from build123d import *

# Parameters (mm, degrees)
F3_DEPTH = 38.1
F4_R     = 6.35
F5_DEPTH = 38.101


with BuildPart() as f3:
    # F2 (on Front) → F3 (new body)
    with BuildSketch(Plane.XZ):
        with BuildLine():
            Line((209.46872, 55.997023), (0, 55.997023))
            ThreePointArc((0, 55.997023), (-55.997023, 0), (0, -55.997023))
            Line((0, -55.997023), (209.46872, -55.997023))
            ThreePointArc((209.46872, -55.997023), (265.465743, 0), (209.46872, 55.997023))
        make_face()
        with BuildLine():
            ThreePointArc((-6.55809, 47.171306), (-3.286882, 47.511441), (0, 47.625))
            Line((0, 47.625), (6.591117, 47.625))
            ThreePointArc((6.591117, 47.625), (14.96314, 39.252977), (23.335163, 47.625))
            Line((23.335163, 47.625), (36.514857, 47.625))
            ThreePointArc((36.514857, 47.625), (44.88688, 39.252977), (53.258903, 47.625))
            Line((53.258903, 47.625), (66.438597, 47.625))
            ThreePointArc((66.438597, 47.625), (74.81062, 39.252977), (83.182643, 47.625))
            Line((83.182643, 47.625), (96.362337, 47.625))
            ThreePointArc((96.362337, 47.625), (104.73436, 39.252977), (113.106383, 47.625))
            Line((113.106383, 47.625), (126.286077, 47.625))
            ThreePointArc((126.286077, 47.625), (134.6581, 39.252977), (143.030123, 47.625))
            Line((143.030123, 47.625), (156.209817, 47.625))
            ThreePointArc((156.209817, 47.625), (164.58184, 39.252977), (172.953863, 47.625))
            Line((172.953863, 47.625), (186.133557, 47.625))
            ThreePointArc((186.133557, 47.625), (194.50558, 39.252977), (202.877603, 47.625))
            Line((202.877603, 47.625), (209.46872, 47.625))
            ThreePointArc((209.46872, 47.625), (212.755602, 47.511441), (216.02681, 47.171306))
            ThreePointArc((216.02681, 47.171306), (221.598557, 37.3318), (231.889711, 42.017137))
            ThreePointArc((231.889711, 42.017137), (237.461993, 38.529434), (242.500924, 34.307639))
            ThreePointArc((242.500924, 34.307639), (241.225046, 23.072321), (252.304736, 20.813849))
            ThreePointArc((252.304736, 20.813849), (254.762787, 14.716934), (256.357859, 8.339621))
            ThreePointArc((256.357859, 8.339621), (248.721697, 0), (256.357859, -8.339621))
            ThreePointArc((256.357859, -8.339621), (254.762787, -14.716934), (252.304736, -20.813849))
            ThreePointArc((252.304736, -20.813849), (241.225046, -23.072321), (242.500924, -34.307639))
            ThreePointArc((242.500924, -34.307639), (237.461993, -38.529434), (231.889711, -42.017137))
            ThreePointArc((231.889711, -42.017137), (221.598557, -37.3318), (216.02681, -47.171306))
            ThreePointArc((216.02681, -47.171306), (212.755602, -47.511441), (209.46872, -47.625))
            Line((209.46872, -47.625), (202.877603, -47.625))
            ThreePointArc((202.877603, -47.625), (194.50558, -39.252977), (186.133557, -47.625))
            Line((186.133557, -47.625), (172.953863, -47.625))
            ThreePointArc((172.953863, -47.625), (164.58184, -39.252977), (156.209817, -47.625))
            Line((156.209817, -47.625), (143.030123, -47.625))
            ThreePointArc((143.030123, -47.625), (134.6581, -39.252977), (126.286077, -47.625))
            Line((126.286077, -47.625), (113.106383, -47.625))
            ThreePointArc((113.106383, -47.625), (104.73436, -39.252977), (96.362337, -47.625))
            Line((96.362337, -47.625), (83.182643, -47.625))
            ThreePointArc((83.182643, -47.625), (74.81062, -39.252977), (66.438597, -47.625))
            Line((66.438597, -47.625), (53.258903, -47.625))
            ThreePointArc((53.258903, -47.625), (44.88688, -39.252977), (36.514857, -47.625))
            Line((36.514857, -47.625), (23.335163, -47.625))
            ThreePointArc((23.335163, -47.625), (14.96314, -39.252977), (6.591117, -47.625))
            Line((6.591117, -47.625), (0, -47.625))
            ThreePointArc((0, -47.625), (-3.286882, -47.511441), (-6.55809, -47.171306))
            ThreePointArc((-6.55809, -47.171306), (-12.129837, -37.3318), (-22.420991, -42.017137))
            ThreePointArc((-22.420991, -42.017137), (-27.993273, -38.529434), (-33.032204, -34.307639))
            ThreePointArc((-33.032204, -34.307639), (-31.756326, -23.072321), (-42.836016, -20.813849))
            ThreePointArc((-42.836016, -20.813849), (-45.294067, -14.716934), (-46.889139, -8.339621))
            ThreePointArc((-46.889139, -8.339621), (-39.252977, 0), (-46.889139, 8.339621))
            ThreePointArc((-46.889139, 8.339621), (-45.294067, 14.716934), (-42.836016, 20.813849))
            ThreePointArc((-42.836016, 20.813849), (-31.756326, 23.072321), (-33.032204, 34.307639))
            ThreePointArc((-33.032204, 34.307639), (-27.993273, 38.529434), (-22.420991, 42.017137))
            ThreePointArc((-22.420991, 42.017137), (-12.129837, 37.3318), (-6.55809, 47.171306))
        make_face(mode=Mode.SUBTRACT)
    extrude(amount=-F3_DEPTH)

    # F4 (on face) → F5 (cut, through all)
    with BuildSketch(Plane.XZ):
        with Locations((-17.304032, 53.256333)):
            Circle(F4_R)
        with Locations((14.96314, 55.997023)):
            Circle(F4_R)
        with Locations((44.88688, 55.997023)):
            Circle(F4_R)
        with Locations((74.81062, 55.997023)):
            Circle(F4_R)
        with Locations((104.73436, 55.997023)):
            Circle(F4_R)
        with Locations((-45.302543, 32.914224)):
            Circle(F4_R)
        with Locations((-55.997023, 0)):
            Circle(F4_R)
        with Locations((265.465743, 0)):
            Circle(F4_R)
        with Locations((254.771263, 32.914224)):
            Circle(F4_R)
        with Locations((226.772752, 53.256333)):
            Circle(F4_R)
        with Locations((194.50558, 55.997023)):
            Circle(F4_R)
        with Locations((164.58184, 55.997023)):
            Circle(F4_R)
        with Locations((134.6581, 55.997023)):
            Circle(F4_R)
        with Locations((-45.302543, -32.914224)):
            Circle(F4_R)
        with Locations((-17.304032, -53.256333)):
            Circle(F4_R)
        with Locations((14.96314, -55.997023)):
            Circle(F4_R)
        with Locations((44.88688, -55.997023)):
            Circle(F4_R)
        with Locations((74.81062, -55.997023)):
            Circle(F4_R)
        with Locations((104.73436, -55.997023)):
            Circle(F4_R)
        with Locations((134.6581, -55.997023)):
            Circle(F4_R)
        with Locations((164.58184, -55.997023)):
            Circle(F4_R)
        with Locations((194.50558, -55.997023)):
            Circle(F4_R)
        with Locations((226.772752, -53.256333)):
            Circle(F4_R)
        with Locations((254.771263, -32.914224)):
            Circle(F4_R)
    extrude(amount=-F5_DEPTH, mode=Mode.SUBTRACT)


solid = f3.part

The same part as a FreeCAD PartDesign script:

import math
import FreeCAD as App
import Part
import Sketcher

V = App.Vector
Q = App.Units.Quantity

doc = App.newDocument("Part")
body = doc.addObject("PartDesign::Body", "Body")

# Sketch on XZ plane
sketch1 = body.newObject("Sketcher::SketchObject", "Sketch")
sketch1.AttachmentSupport = (doc.getObject("XZ_Plane"), [""])
sketch1.MapMode = "FlatFace"
sketch1.addGeometry([
    Part.LineSegment(V(209.46872, 55.997023, 0), V(0, 55.997023, 0)),  # 0
    Part.ArcOfCircle(Part.Circle(V(0, 0, 0), V(0, 0, 1), 55.997023), math.radians(90), math.radians(270)),  # 1
    Part.LineSegment(V(0, -55.997023, 0), V(209.46872, -55.997023, 0)),  # 2
    Part.ArcOfCircle(Part.Circle(V(209.46872, 0, 0), V(0, 0, 1), 55.997023), math.radians(-90), math.radians(90)),  # 3
    Part.ArcOfCircle(Part.Circle(V(-14.716934, 45.294067, 0), V(0, 0, 1), 8.372023), math.radians(-156.957467), math.radians(12.957467)),  # 4
    Part.ArcOfCircle(Part.Circle(V(0.000004, -0.00009, 0), V(0, 0, 1), 47.62509), math.radians(90.000005), math.radians(97.914922)),  # 5
    Part.LineSegment(V(0, 47.625, 0), V(6.591117, 47.625, 0)),  # 6
    Part.ArcOfCircle(Part.Circle(V(14.96314, 47.625, 0), V(0, 0, 1), 8.372023), math.radians(180), math.radians(360)),  # 7
    Part.LineSegment(V(23.335163, 47.625, 0), V(36.514857, 47.625, 0)),  # 8
    Part.ArcOfCircle(Part.Circle(V(44.88688, 47.625, 0), V(0, 0, 1), 8.372023), math.radians(180), math.radians(360)),  # 9
    Part.LineSegment(V(53.258903, 47.625, 0), V(66.438597, 47.625, 0)),  # 10
    Part.ArcOfCircle(Part.Circle(V(74.81062, 47.625, 0), V(0, 0, 1), 8.372023), math.radians(180), math.radians(360)),  # 11
    Part.LineSegment(V(83.182643, 47.625, 0), V(96.362337, 47.625, 0)),  # 12
    Part.ArcOfCircle(Part.Circle(V(104.73436, 47.625, 0), V(0, 0, 1), 8.372023), math.radians(180), math.radians(360)),  # 13
    Part.LineSegment(V(113.106383, 47.625, 0), V(126.286077, 47.625, 0)),  # 14
    Part.ArcOfCircle(Part.Circle(V(134.6581, 47.625, 0), V(0, 0, 1), 8.372023), math.radians(180), math.radians(360)),  # 15
    Part.LineSegment(V(143.030123, 47.625, 0), V(156.209817, 47.625, 0)),  # 16
    Part.ArcOfCircle(Part.Circle(V(164.58184, 47.625, 0), V(0, 0, 1), 8.372023), math.radians(180), math.radians(360)),  # 17
    Part.LineSegment(V(172.953863, 47.625, 0), V(186.133557, 47.625, 0)),  # 18
    Part.ArcOfCircle(Part.Circle(V(194.50558, 47.625, 0), V(0, 0, 1), 8.372023), math.radians(180), math.radians(360)),  # 19
    Part.LineSegment(V(202.877603, 47.625, 0), V(209.46872, 47.625, 0)),  # 20
    Part.ArcOfCircle(Part.Circle(V(209.468716, -0.00009, 0), V(0, 0, 1), 47.62509), math.radians(82.085078), math.radians(89.999995)),  # 21
    Part.ArcOfCircle(Part.Circle(V(224.185654, 45.294067, 0), V(0, 0, 1), 8.372023), math.radians(167.042533), math.radians(336.957467)),  # 22
    Part.ArcOfCircle(Part.Circle(V(209.468719, 0.000002, 0), V(0, 0, 1), 47.624999), math.radians(46.085066), math.radians(61.914931)),  # 23
    Part.ArcOfCircle(Part.Circle(V(247.998155, 27.993273, 0), V(0, 0, 1), 8.372023), math.radians(131.042538), math.radians(300.95746)),  # 24
    Part.ArcOfCircle(Part.Circle(V(209.468769, 0.000014, 0), V(0, 0, 1), 47.62495), math.radians(10.085063), math.radians(25.914943)),  # 25
    Part.ArcOfCircle(Part.Circle(V(257.09372, 0, 0), V(0, 0, 1), 8.372023), math.radians(95.042534), math.radians(264.957466)),  # 26
    Part.ArcOfCircle(Part.Circle(V(209.468769, -0.000014, 0), V(0, 0, 1), 47.62495), math.radians(-25.914943), math.radians(-10.085063)),  # 27
    Part.ArcOfCircle(Part.Circle(V(247.998155, -27.993273, 0), V(0, 0, 1), 8.372023), math.radians(59.04254), math.radians(228.957462)),  # 28
    Part.ArcOfCircle(Part.Circle(V(209.468719, -0.000002, 0), V(0, 0, 1), 47.624999), math.radians(-61.914931), math.radians(-46.085066)),  # 29
    Part.ArcOfCircle(Part.Circle(V(224.185654, -45.294067, 0), V(0, 0, 1), 8.372023), math.radians(23.042533), math.radians(192.957467)),  # 30
    Part.ArcOfCircle(Part.Circle(V(209.468716, 0.00009, 0), V(0, 0, 1), 47.62509), math.radians(-89.999995), math.radians(-82.085078)),  # 31
    Part.LineSegment(V(209.46872, -47.625, 0), V(202.877603, -47.625, 0)),  # 32
    Part.ArcOfCircle(Part.Circle(V(194.50558, -47.625, 0), V(0, 0, 1), 8.372023), math.radians(0), math.radians(180)),  # 33
    Part.LineSegment(V(186.133557, -47.625, 0), V(172.953863, -47.625, 0)),  # 34
    Part.ArcOfCircle(Part.Circle(V(164.58184, -47.625, 0), V(0, 0, 1), 8.372023), math.radians(0), math.radians(180)),  # 35
    Part.LineSegment(V(156.209817, -47.625, 0), V(143.030123, -47.625, 0)),  # 36
    Part.ArcOfCircle(Part.Circle(V(134.6581, -47.625, 0), V(0, 0, 1), 8.372023), math.radians(0), math.radians(180)),  # 37
    Part.LineSegment(V(126.286077, -47.625, 0), V(113.106383, -47.625, 0)),  # 38
    Part.ArcOfCircle(Part.Circle(V(104.73436, -47.625, 0), V(0, 0, 1), 8.372023), math.radians(0), math.radians(180)),  # 39
    Part.LineSegment(V(96.362337, -47.625, 0), V(83.182643, -47.625, 0)),  # 40
    Part.ArcOfCircle(Part.Circle(V(74.81062, -47.625, 0), V(0, 0, 1), 8.372023), math.radians(0), math.radians(180)),  # 41
    Part.LineSegment(V(66.438597, -47.625, 0), V(53.258903, -47.625, 0)),  # 42
    Part.ArcOfCircle(Part.Circle(V(44.88688, -47.625, 0), V(0, 0, 1), 8.372023), math.radians(0), math.radians(180)),  # 43
    Part.LineSegment(V(36.514857, -47.625, 0), V(23.335163, -47.625, 0)),  # 44
    Part.ArcOfCircle(Part.Circle(V(14.96314, -47.625, 0), V(0, 0, 1), 8.372023), math.radians(0), math.radians(180)),  # 45
    Part.LineSegment(V(6.591117, -47.625, 0), V(0, -47.625, 0)),  # 46
    Part.ArcOfCircle(Part.Circle(V(0.000004, 0.00009, 0), V(0, 0, 1), 47.62509), math.radians(-97.914922), math.radians(-90.000005)),  # 47
    Part.ArcOfCircle(Part.Circle(V(-14.716934, -45.294067, 0), V(0, 0, 1), 8.372023), math.radians(-12.957467), math.radians(156.957467)),  # 48
    Part.ArcOfCircle(Part.Circle(V(0.000001, -0.000002, 0), V(0, 0, 1), 47.624999), math.radians(-133.914934), math.radians(-118.085069)),  # 49
    Part.ArcOfCircle(Part.Circle(V(-38.529435, -27.993273, 0), V(0, 0, 1), 8.372023), math.radians(-48.957462), math.radians(120.95746)),  # 50
    Part.ArcOfCircle(Part.Circle(V(-0.000049, -0.000014, 0), V(0, 0, 1), 47.62495), math.radians(-169.914937), math.radians(-154.085057)),  # 51
    Part.ArcOfCircle(Part.Circle(V(-47.625, 0, 0), V(0, 0, 1), 8.372023), math.radians(-84.957466), math.radians(84.957466)),  # 52
    Part.ArcOfCircle(Part.Circle(V(-0.000049, 0.000014, 0), V(0, 0, 1), 47.62495), math.radians(154.085057), math.radians(169.914937)),  # 53
    Part.ArcOfCircle(Part.Circle(V(-38.529435, 27.993273, 0), V(0, 0, 1), 8.372023), math.radians(-120.95746), math.radians(48.957462)),  # 54
    Part.ArcOfCircle(Part.Circle(V(0.000001, 0.000002, 0), V(0, 0, 1), 47.624999), math.radians(118.085069), math.radians(133.914934)),  # 55
], False)
sketch1.addConstraint([
    Sketcher.Constraint("Tangent", 0, 2, 1, 1),
    Sketcher.Constraint("Tangent", 1, 2, 2, 1),
    Sketcher.Constraint("Tangent", 2, 2, 3, 1),
    Sketcher.Constraint("Tangent", 3, 2, 0, 1),
    Sketcher.Constraint("Coincident", 4, 2, 5, 2),
    Sketcher.Constraint("Tangent", 5, 1, 6, 1),
    Sketcher.Constraint("Coincident", 6, 2, 7, 1),
    Sketcher.Constraint("Coincident", 7, 2, 8, 1),
    Sketcher.Constraint("Coincident", 8, 2, 9, 1),
    Sketcher.Constraint("Coincident", 9, 2, 10, 1),
    Sketcher.Constraint("Coincident", 10, 2, 11, 1),
    Sketcher.Constraint("Coincident", 11, 2, 12, 1),
    Sketcher.Constraint("Coincident", 12, 2, 13, 1),
    Sketcher.Constraint("Coincident", 13, 2, 14, 1),
    Sketcher.Constraint("Coincident", 14, 2, 15, 1),
    Sketcher.Constraint("Coincident", 15, 2, 16, 1),
    Sketcher.Constraint("Coincident", 16, 2, 17, 1),
    Sketcher.Constraint("Coincident", 17, 2, 18, 1),
    Sketcher.Constraint("Coincident", 18, 2, 19, 1),
    Sketcher.Constraint("Coincident", 19, 2, 20, 1),
    Sketcher.Constraint("Tangent", 20, 2, 21, 2),
    Sketcher.Constraint("Coincident", 21, 1, 22, 1),
    Sketcher.Constraint("Coincident", 22, 2, 23, 2),
    Sketcher.Constraint("Coincident", 23, 1, 24, 1),
    Sketcher.Constraint("Coincident", 24, 2, 25, 2),
    Sketcher.Constraint("Coincident", 25, 1, 26, 1),
    Sketcher.Constraint("Coincident", 26, 2, 27, 2),
    Sketcher.Constraint("Coincident", 27, 1, 28, 1),
    Sketcher.Constraint("Coincident", 28, 2, 29, 2),
    Sketcher.Constraint("Coincident", 29, 1, 30, 1),
    Sketcher.Constraint("Coincident", 30, 2, 31, 2),
    Sketcher.Constraint("Tangent", 31, 1, 32, 1),
    Sketcher.Constraint("Coincident", 32, 2, 33, 1),
    Sketcher.Constraint("Coincident", 33, 2, 34, 1),
    Sketcher.Constraint("Coincident", 34, 2, 35, 1),
    Sketcher.Constraint("Coincident", 35, 2, 36, 1),
    Sketcher.Constraint("Coincident", 36, 2, 37, 1),
    Sketcher.Constraint("Coincident", 37, 2, 38, 1),
    Sketcher.Constraint("Coincident", 38, 2, 39, 1),
    Sketcher.Constraint("Coincident", 39, 2, 40, 1),
    Sketcher.Constraint("Coincident", 40, 2, 41, 1),
    Sketcher.Constraint("Coincident", 41, 2, 42, 1),
    Sketcher.Constraint("Coincident", 42, 2, 43, 1),
    Sketcher.Constraint("Coincident", 43, 2, 44, 1),
    Sketcher.Constraint("Coincident", 44, 2, 45, 1),
    Sketcher.Constraint("Coincident", 45, 2, 46, 1),
    Sketcher.Constraint("Tangent", 46, 2, 47, 2),
    Sketcher.Constraint("Coincident", 47, 1, 48, 1),
    Sketcher.Constraint("Coincident", 48, 2, 49, 2),
    Sketcher.Constraint("Coincident", 49, 1, 50, 1),
    Sketcher.Constraint("Coincident", 50, 2, 51, 2),
    Sketcher.Constraint("Coincident", 51, 1, 52, 1),
    Sketcher.Constraint("Coincident", 52, 2, 53, 2),
    Sketcher.Constraint("Coincident", 53, 1, 54, 1),
    Sketcher.Constraint("Coincident", 54, 2, 55, 2),
    Sketcher.Constraint("Coincident", 55, 1, 4, 1),
    Sketcher.Constraint("Horizontal", 0),
    Sketcher.Constraint("Horizontal", 2),
    Sketcher.Constraint("Horizontal", 6),
    Sketcher.Constraint("Horizontal", 8),
    Sketcher.Constraint("Horizontal", 10),
    Sketcher.Constraint("Horizontal", 12),
    Sketcher.Constraint("Horizontal", 14),
    Sketcher.Constraint("Horizontal", 16),
    Sketcher.Constraint("Horizontal", 18),
    Sketcher.Constraint("Horizontal", 20),
    Sketcher.Constraint("Horizontal", 32),
    Sketcher.Constraint("Horizontal", 34),
    Sketcher.Constraint("Horizontal", 36),
    Sketcher.Constraint("Horizontal", 38),
    Sketcher.Constraint("Horizontal", 40),
    Sketcher.Constraint("Horizontal", 42),
    Sketcher.Constraint("Horizontal", 44),
    Sketcher.Constraint("Horizontal", 46),
    Sketcher.Constraint("Coincident", 1, 3, -1, 1),
    Sketcher.Constraint("Coincident", 49, 3, -1, 1),
    Sketcher.Constraint("Coincident", 55, 3, -1, 1),
    Sketcher.Constraint("Coincident", 23, 3, 3, 3),
    Sketcher.Constraint("Coincident", 29, 3, 3, 3),
    Sketcher.Constraint("Equal", 4, 7),
    Sketcher.Constraint("Equal", 7, 9),
    Sketcher.Constraint("Equal", 9, 11),
    Sketcher.Constraint("Equal", 11, 13),
    Sketcher.Constraint("Equal", 13, 15),
    Sketcher.Constraint("Equal", 15, 17),
    Sketcher.Constraint("Equal", 17, 19),
    Sketcher.Constraint("Equal", 5, 21),
    Sketcher.Constraint("Equal", 19, 22),
    Sketcher.Constraint("Equal", 22, 24),
    Sketcher.Constraint("Equal", 24, 26),
    Sketcher.Constraint("Equal", 25, 27),
    Sketcher.Constraint("Equal", 26, 28),
    Sketcher.Constraint("Equal", 23, 29),
    Sketcher.Constraint("Equal", 28, 30),
    Sketcher.Constraint("Equal", 21, 31),
    Sketcher.Constraint("Equal", 30, 33),
    Sketcher.Constraint("Equal", 33, 35),
    Sketcher.Constraint("Equal", 35, 37),
    Sketcher.Constraint("Equal", 37, 39),
    Sketcher.Constraint("Equal", 39, 41),
    Sketcher.Constraint("Equal", 41, 43),
    Sketcher.Constraint("Equal", 43, 45),
    Sketcher.Constraint("Equal", 31, 47),
    Sketcher.Constraint("Equal", 45, 48),
    Sketcher.Constraint("Equal", 29, 49),
    Sketcher.Constraint("Equal", 48, 50),
    Sketcher.Constraint("Equal", 27, 51),
    Sketcher.Constraint("Equal", 50, 52),
    Sketcher.Constraint("Equal", 51, 53),
    Sketcher.Constraint("Equal", 52, 54),
    Sketcher.Constraint("Equal", 49, 55),
    Sketcher.Constraint("Symmetric", 5, 3, 47, 3, -1, 1),
    Sketcher.Constraint("Symmetric", 25, 3, 27, 3, -1),
    Sketcher.Constraint("Symmetric", 24, 3, 28, 3, -1),
    Sketcher.Constraint("Symmetric", 22, 3, 30, 3, -1),
    Sketcher.Constraint("Symmetric", 21, 3, 31, 3, -1),
    Sketcher.Constraint("Symmetric", 19, 3, 33, 3, -1),
    Sketcher.Constraint("Symmetric", 17, 3, 35, 3, -1),
    Sketcher.Constraint("Symmetric", 15, 3, 37, 3, -1),
    Sketcher.Constraint("Symmetric", 13, 3, 39, 3, -1),
    Sketcher.Constraint("Symmetric", 11, 3, 41, 3, -1),
    Sketcher.Constraint("Symmetric", 9, 3, 43, 3, -1),
    Sketcher.Constraint("Symmetric", 7, 3, 45, 3, -1),
    Sketcher.Constraint("Symmetric", 4, 3, 48, 3, -1),
    Sketcher.Constraint("Symmetric", 51, 3, 53, 3, -1),
    Sketcher.Constraint("Symmetric", 50, 3, 54, 3, -1),
    Sketcher.Constraint("PointOnObject", 26, 3, -1),
    Sketcher.Constraint("PointOnObject", 52, 3, -1),
    Sketcher.Constraint("PointOnObject", 5, 1, -2),
    Sketcher.Constraint("Horizontal", 7, 3, 9, 3),
    Sketcher.Constraint("Horizontal", 9, 3, 11, 3),
    Sketcher.Constraint("Horizontal", 11, 3, 13, 3),
    Sketcher.Constraint("Horizontal", 13, 3, 15, 3),
    Sketcher.Constraint("Horizontal", 15, 3, 17, 3),
    Sketcher.Constraint("Horizontal", 17, 3, 19, 3),
    Sketcher.Constraint("Horizontal", 5, 3, 21, 3),
    Sketcher.Constraint("Horizontal", 4, 3, 22, 3),
    Sketcher.Constraint("Horizontal", 28, 3, 50, 3),
    Sketcher.Constraint("Horizontal", 27, 3, 51, 3),
    Sketcher.Constraint("Horizontal", 19, 3, 5, 1),
    Sketcher.Constraint("Horizontal", 6, 2, 7, 2),
    Sketcher.Constraint("Horizontal", 8, 2, 9, 2),
    Sketcher.Constraint("Horizontal", 10, 2, 11, 2),
    Sketcher.Constraint("Horizontal", 12, 2, 13, 2),
    Sketcher.Constraint("Horizontal", 14, 2, 15, 2),
    Sketcher.Constraint("Horizontal", 16, 2, 17, 2),
    Sketcher.Constraint("Horizontal", 4, 2, 21, 1),
    Sketcher.Constraint("Horizontal", 32, 2, 33, 2),
    Sketcher.Constraint("Horizontal", 34, 2, 35, 2),
    Sketcher.Constraint("Horizontal", 36, 2, 37, 2),
    Sketcher.Constraint("Horizontal", 38, 2, 39, 2),
    Sketcher.Constraint("Horizontal", 40, 2, 41, 2),
    Sketcher.Constraint("Horizontal", 42, 2, 43, 2),
    Sketcher.Constraint("Horizontal", 29, 1, 48, 2),
    Sketcher.Constraint("Horizontal", 28, 2, 49, 1),
    Sketcher.Constraint("Horizontal", 27, 1, 50, 2),
    Sketcher.Constraint("Horizontal", 26, 2, 51, 1),
    Sketcher.Constraint("Equal", 8, 10),
    Sketcher.Constraint("Equal", 10, 12),
    Sketcher.Constraint("Equal", 12, 14),
    Sketcher.Constraint("Equal", 14, 16),
    Sketcher.Constraint("Equal", 16, 18),
    Sketcher.Constraint("Equal", 6, 20),
    Sketcher.Constraint("Radius", 23, Q("1.875 in")),
    Sketcher.Constraint("DistanceX", 0, 2, 0, 1, Q("8.2468 in")),
    Sketcher.Constraint("DistanceY", -1, 1, 7, 3, Q("1.875 in")),
    Sketcher.Constraint("DistanceX", 52, 3, -1, 1, Q("1.875 in")),
    Sketcher.Constraint("Radius", 5, Q("47.62509 mm")),
    Sketcher.Constraint("Radius", 25, Q("47.62495 mm")),
    Sketcher.Constraint("DistanceX", -1, 1, 7, 3, Q("0.5891 in")),
    Sketcher.Constraint("Radius", 1, Q("55.997023 mm")),
    Sketcher.Constraint("Radius", 4, Q("8.372023 mm")),
    Sketcher.Constraint("DistanceX", -1, 1, 25, 3, Q("209.468769 mm")),
    Sketcher.Constraint("DistanceX", 4, 2, -1, 1, Q("6.55809 mm")),
    Sketcher.Constraint("DistanceX", -1, 1, 22, 2, Q("231.889711 mm")),
    Sketcher.Constraint("DistanceY", -1, 1, 23, 1, Q("34.307639 mm")),
    Sketcher.Constraint("DistanceY", -1, 1, 24, 2, Q("20.813849 mm")),
    Sketcher.Constraint("DistanceX", -1, 1, 25, 1, Q("256.357859 mm")),
])
pad1 = body.newObject("PartDesign::Pad", "Pad")
pad1.Profile = sketch1
pad1.Length = Q("1.5 in")
pad1.Reversed = True

# Sketch on XZ plane
sketch2 = body.newObject("Sketcher::SketchObject", "Sketch001")
sketch2.AttachmentSupport = (doc.getObject("XZ_Plane"), [""])
sketch2.MapMode = "FlatFace"
sketch2.addGeometry([
    Part.Circle(V(-17.304032, 53.256333, 0), V(0, 0, 1), 6.35),  # 0
    Part.Circle(V(14.96314, 55.997023, 0), V(0, 0, 1), 6.35),  # 1
    Part.Circle(V(44.88688, 55.997023, 0), V(0, 0, 1), 6.35),  # 2
    Part.Circle(V(74.81062, 55.997023, 0), V(0, 0, 1), 6.35),  # 3
    Part.Circle(V(104.73436, 55.997023, 0), V(0, 0, 1), 6.35),  # 4
    Part.Circle(V(-45.302543, 32.914224, 0), V(0, 0, 1), 6.35),  # 5
    Part.Circle(V(-55.997023, 0, 0), V(0, 0, 1), 6.35),  # 6
    Part.Circle(V(265.465743, 0, 0), V(0, 0, 1), 6.35),  # 7
    Part.Circle(V(254.771263, 32.914224, 0), V(0, 0, 1), 6.35),  # 8
    Part.Circle(V(226.772752, 53.256333, 0), V(0, 0, 1), 6.35),  # 9
    Part.Circle(V(194.50558, 55.997023, 0), V(0, 0, 1), 6.35),  # 10
    Part.Circle(V(164.58184, 55.997023, 0), V(0, 0, 1), 6.35),  # 11
    Part.Circle(V(134.6581, 55.997023, 0), V(0, 0, 1), 6.35),  # 12
    Part.Circle(V(-45.302543, -32.914224, 0), V(0, 0, 1), 6.35),  # 13
    Part.Circle(V(-17.304032, -53.256333, 0), V(0, 0, 1), 6.35),  # 14
    Part.Circle(V(14.96314, -55.997023, 0), V(0, 0, 1), 6.35),  # 15
    Part.Circle(V(44.88688, -55.997023, 0), V(0, 0, 1), 6.35),  # 16
    Part.Circle(V(74.81062, -55.997023, 0), V(0, 0, 1), 6.35),  # 17
    Part.Circle(V(104.73436, -55.997023, 0), V(0, 0, 1), 6.35),  # 18
    Part.Circle(V(134.6581, -55.997023, 0), V(0, 0, 1), 6.35),  # 19
    Part.Circle(V(164.58184, -55.997023, 0), V(0, 0, 1), 6.35),  # 20
    Part.Circle(V(194.50558, -55.997023, 0), V(0, 0, 1), 6.35),  # 21
    Part.Circle(V(226.772752, -53.256333, 0), V(0, 0, 1), 6.35),  # 22
    Part.Circle(V(254.771263, -32.914224, 0), V(0, 0, 1), 6.35),  # 23
], False)
sketch2.addConstraint([
    Sketcher.Constraint("Equal", 0, 1),
    Sketcher.Constraint("Equal", 1, 2),
    Sketcher.Constraint("Equal", 2, 3),
    Sketcher.Constraint("Equal", 3, 4),
    Sketcher.Constraint("Equal", 4, 5),
    Sketcher.Constraint("Equal", 5, 6),
    Sketcher.Constraint("Equal", 6, 7),
    Sketcher.Constraint("Equal", 7, 8),
    Sketcher.Constraint("Equal", 8, 9),
    Sketcher.Constraint("Equal", 9, 10),
    Sketcher.Constraint("Equal", 10, 11),
    Sketcher.Constraint("Equal", 11, 12),
    Sketcher.Constraint("Equal", 12, 13),
    Sketcher.Constraint("Equal", 13, 14),
    Sketcher.Constraint("Equal", 14, 15),
    Sketcher.Constraint("Equal", 15, 16),
    Sketcher.Constraint("Equal", 16, 17),
    Sketcher.Constraint("Equal", 17, 18),
    Sketcher.Constraint("Equal", 18, 19),
    Sketcher.Constraint("Equal", 19, 20),
    Sketcher.Constraint("Equal", 20, 21),
    Sketcher.Constraint("Equal", 21, 22),
    Sketcher.Constraint("Equal", 22, 23),
    Sketcher.Constraint("Symmetric", 5, 3, 13, 3, -1),
    Sketcher.Constraint("Symmetric", 0, 3, 14, 3, -1),
    Sketcher.Constraint("Symmetric", 1, 3, 15, 3, -1),
    Sketcher.Constraint("Symmetric", 2, 3, 16, 3, -1),
    Sketcher.Constraint("Symmetric", 3, 3, 17, 3, -1),
    Sketcher.Constraint("Symmetric", 4, 3, 18, 3, -1),
    Sketcher.Constraint("Symmetric", 12, 3, 19, 3, -1),
    Sketcher.Constraint("Symmetric", 11, 3, 20, 3, -1),
    Sketcher.Constraint("Symmetric", 10, 3, 21, 3, -1),
    Sketcher.Constraint("Symmetric", 9, 3, 22, 3, -1),
    Sketcher.Constraint("Symmetric", 8, 3, 23, 3, -1),
    Sketcher.Constraint("PointOnObject", 6, 3, -1),
    Sketcher.Constraint("PointOnObject", 7, 3, -1),
    Sketcher.Constraint("Horizontal", 1, 3, 2, 3),
    Sketcher.Constraint("Horizontal", 2, 3, 3, 3),
    Sketcher.Constraint("Horizontal", 3, 3, 4, 3),
    Sketcher.Constraint("Horizontal", 5, 3, 8, 3),
    Sketcher.Constraint("Horizontal", 0, 3, 9, 3),
    Sketcher.Constraint("Horizontal", 4, 3, 10, 3),
    Sketcher.Constraint("Horizontal", 10, 3, 11, 3),
    Sketcher.Constraint("Horizontal", 11, 3, 12, 3),
    Sketcher.Constraint("Diameter", 0, Q("0.5 in")),
    Sketcher.Constraint("DistanceX", -1, 1, 1, 3, Q("0.5891 in")),
    Sketcher.Constraint("DistanceX", -1, 1, 2, 3, Q("1.7672 in")),
    Sketcher.Constraint("DistanceX", -1, 1, 3, 3, Q("2.9453 in")),
    Sketcher.Constraint("DistanceX", -1, 1, 4, 3, Q("4.1234 in")),
    Sketcher.Constraint("DistanceX", -1, 1, 10, 3, Q("7.6577 in")),
    Sketcher.Constraint("DistanceX", -1, 1, 11, 3, Q("6.4796 in")),
    Sketcher.Constraint("DistanceX", -1, 1, 12, 3, Q("5.3015 in")),
    Sketcher.Constraint("DistanceY", 5, 3, 1, 3, Q("23.082799 mm")),
    Sketcher.Constraint("DistanceX", 0, 3, -1, 1, Q("17.304032 mm")),
    Sketcher.Constraint("DistanceX", -1, 1, 9, 3, Q("226.772752 mm")),
    Sketcher.Constraint("DistanceY", 0, 3, 1, 3, Q("2.74069 mm")),
    Sketcher.Constraint("DistanceX", 5, 3, 0, 3, Q("27.998511 mm")),
    Sketcher.Constraint("DistanceX", 6, 3, 5, 3, Q("10.69448 mm")),
    Sketcher.Constraint("DistanceX", 8, 3, 7, 3, Q("10.69448 mm")),
    Sketcher.Constraint("DistanceX", 9, 3, 8, 3, Q("27.998511 mm")),
    Sketcher.Constraint("DistanceY", -1, 1, 0, 3, Q("53.256333 mm")),
])
pocket1 = body.newObject("PartDesign::Pocket", "Pocket")
pocket1.Profile = sketch2
pocket1.Type = "ThroughAll"

doc.recompute()
